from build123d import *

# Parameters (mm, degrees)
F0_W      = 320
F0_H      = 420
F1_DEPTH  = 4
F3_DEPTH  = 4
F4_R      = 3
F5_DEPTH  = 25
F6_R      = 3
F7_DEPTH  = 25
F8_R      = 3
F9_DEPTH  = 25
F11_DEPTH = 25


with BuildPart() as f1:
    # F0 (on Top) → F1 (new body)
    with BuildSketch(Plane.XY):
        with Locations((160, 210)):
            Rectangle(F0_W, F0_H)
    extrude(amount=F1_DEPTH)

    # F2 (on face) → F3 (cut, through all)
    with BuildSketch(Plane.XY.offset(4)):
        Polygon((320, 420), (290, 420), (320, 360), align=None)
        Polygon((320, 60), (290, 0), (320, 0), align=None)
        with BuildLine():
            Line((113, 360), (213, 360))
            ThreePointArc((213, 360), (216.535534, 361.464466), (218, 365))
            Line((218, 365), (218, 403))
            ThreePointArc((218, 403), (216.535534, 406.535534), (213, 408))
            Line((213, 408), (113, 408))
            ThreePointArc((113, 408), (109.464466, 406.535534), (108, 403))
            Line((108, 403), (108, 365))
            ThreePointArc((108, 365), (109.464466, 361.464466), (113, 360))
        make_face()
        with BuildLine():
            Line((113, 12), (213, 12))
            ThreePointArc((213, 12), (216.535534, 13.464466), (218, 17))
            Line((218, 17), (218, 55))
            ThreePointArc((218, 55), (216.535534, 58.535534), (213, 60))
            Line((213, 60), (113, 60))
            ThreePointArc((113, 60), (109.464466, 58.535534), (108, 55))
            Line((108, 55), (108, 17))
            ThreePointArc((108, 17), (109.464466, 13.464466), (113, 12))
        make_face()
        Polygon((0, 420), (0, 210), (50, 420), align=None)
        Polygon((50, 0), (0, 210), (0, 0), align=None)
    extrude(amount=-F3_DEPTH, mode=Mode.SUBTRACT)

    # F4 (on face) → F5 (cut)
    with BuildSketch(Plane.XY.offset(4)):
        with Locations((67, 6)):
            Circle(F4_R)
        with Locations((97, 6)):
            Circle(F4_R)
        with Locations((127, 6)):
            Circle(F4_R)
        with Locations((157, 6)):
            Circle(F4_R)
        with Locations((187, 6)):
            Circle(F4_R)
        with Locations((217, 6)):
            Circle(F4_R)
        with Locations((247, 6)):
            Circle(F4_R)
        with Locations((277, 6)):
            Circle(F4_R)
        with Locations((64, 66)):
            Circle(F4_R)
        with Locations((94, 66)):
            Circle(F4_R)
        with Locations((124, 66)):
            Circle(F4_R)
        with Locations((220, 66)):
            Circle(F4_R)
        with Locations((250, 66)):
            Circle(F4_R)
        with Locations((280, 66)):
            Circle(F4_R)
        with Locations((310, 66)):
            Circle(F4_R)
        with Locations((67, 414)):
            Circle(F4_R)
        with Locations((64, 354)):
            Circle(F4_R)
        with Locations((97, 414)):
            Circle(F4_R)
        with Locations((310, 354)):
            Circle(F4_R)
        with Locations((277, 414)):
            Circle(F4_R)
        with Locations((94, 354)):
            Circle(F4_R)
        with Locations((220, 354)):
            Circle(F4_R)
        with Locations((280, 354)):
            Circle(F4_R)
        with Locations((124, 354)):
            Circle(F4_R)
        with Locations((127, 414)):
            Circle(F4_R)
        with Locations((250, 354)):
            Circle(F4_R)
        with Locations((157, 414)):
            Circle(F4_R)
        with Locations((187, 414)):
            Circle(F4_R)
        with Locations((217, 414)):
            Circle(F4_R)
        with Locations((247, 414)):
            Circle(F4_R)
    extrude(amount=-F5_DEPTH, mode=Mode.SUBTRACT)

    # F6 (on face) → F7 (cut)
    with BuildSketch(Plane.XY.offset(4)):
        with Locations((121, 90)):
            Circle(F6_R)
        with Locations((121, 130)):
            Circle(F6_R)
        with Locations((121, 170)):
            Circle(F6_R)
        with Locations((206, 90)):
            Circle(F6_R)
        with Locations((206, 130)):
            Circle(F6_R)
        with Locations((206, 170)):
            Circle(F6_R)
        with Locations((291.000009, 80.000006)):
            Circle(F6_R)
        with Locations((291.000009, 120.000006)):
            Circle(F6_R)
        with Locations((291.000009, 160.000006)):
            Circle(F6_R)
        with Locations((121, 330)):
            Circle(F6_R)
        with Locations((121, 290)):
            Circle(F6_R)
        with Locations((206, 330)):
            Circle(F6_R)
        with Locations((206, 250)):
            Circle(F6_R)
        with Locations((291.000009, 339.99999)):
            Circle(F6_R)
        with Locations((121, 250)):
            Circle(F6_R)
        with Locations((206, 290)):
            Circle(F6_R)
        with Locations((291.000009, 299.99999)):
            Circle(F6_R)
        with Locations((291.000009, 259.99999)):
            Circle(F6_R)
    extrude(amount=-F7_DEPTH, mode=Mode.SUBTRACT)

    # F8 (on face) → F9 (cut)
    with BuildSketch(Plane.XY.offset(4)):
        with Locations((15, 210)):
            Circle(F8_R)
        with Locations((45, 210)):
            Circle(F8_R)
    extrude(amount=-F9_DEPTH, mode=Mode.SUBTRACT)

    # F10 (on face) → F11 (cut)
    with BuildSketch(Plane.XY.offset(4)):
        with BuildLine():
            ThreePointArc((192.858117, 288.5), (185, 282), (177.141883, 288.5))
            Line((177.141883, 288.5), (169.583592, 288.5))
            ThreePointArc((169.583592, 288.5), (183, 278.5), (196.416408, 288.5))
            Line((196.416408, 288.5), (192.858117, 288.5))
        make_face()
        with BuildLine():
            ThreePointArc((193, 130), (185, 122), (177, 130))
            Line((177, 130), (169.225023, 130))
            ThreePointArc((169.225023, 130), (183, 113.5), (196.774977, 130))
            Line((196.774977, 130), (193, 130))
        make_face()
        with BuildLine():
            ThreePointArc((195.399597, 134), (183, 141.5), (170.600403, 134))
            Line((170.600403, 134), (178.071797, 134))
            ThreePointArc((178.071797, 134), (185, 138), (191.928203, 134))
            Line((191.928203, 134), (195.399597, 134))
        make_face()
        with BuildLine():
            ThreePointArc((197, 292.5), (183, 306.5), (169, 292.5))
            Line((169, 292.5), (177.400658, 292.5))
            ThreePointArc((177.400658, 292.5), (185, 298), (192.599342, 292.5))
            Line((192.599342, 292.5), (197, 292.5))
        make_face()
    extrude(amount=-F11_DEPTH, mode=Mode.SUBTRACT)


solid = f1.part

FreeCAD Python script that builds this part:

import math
import FreeCAD as App
import Part
import Sketcher
from FreeCAD import Vector

doc = App.newDocument("Part")
body = doc.addObject("PartDesign::Body", "Body")

sketch1 = body.newObject("Sketcher::SketchObject", "Sketch")
sketch1.AttachmentSupport = (doc.getObject("XY_Plane"), [""])
sketch1.MapMode = "FlatFace"
sketch1.addGeometry([
    Part.LineSegment(Vector(0, 420, 0), Vector(0, 0, 0)),
    Part.LineSegment(Vector(0, 0, 0), Vector(320, 0, 0)),
    Part.LineSegment(Vector(320, 0, 0), Vector(320, 420, 0)),
    Part.LineSegment(Vector(320, 420, 0), Vector(0, 420, 0)),
], False)
sketch1.addConstraint([
    Sketcher.Constraint("Coincident", 0, 2, 1, 1),
    Sketcher.Constraint("Coincident", 1, 2, 2, 1),
    Sketcher.Constraint("Coincident", 2, 2, 3, 1),
    Sketcher.Constraint("Coincident", 3, 2, 0, 1),
    Sketcher.Constraint("Vertical", 0),
    Sketcher.Constraint("Horizontal", 1),
    Sketcher.Constraint("Vertical", 2),
    Sketcher.Constraint("Horizontal", 3),
    Sketcher.Constraint("Coincident", 0, 2, -1, 1),
    Sketcher.Constraint("DistanceX", 1, 1, 1, 2, 320.0),
    Sketcher.Constraint("DistanceY", 0, 2, 0, 1, 420.0),
])
pad1 = body.newObject("PartDesign::Pad", "Pad")
pad1.Profile = sketch1
pad1.Length = 4

sketch2 = body.newObject("Sketcher::SketchObject", "Sketch001")
sketch2.AttachmentSupport = (doc.getObject("XY_Plane"), [""])
sketch2.MapMode = "FlatFace"
sketch2.AttachmentOffset = App.Placement(Vector(0, 0, 4), App.Rotation())
sketch2.addGeometry([
    Part.LineSegment(Vector(320, 420, 0), Vector(290, 420, 0)),
    Part.LineSegment(Vector(290, 420, 0), Vector(320, 360, 0)),
    Part.LineSegment(Vector(320, 360, 0), Vector(320, 420, 0)),
    Part.LineSegment(Vector(320, 60, 0), Vector(290, 0, 0)),
    Part.LineSegment(Vector(290, 0, 0), Vector(320, 0, 0)),
    Part.LineSegment(Vector(320, 0, 0), Vector(320, 60, 0)),
    Part.LineSegment(Vector(113, 360, 0), Vector(213, 360, 0)),
    Part.ArcOfCircle(Part.Circle(Vector(213, 365, 0), Vector(0, 0, 1), 5), math.radians(-90.000004), math.radians(0.000004)),
    Part.LineSegment(Vector(218, 365, 0), Vector(218, 403, 0)),
    Part.ArcOfCircle(Part.Circle(Vector(213, 403, 0), Vector(0, 0, 1), 5), math.radians(-0.000004), math.radians(90.000004)),
    Part.LineSegment(Vector(213, 408, 0), Vector(113, 408, 0)),
    Part.ArcOfCircle(Part.Circle(Vector(113, 403, 0), Vector(0, 0, 1), 5), math.radians(89.999996), math.radians(180.000004)),
    Part.LineSegment(Vector(108, 403, 0), Vector(108, 365, 0)),
    Part.ArcOfCircle(Part.Circle(Vector(113, 365, 0), Vector(0, 0, 1), 5), math.radians(179.999996), math.radians(270.000004)),
    Part.LineSegment(Vector(113, 12, 0), Vector(213, 12, 0)),
    Part.ArcOfCircle(Part.Circle(Vector(213, 17, 0), Vector(0, 0, 1), 5), math.radians(-90.000004), math.radians(0.000004)),
    Part.LineSegment(Vector(218, 17, 0), Vector(218, 55, 0)),
    Part.ArcOfCircle(Part.Circle(Vector(213, 55, 0), Vector(0, 0, 1), 5), math.radians(-0.000004), math.radians(90.000004)),
    Part.LineSegment(Vector(213, 60, 0), Vector(113, 60, 0)),
    Part.ArcOfCircle(Part.Circle(Vector(113, 55, 0), Vector(0, 0, 1), 5), math.radians(89.999996), math.radians(180.000004)),
    Part.LineSegment(Vector(108, 55, 0), Vector(108, 17, 0)),
    Part.ArcOfCircle(Part.Circle(Vector(113, 17, 0), Vector(0, 0, 1), 5), math.radians(179.999996), math.radians(270.000004)),
    Part.LineSegment(Vector(0, 420, 0), Vector(0, 210, 0)),
    Part.LineSegment(Vector(0, 210, 0), Vector(50, 420, 0)),
    Part.LineSegment(Vector(50, 420, 0), Vector(0, 420, 0)),
    Part.LineSegment(Vector(50, 0, 0), Vector(0, 210, 0)),
    Part.LineSegment(Vector(0, 210, 0), Vector(0, 0, 0)),
    Part.LineSegment(Vector(0, 0, 0), Vector(50, 0, 0)),
], False)
sketch2.addConstraint([
    Sketcher.Constraint("Coincident", 0, 2, 1, 1),
    Sketcher.Constraint("Coincident", 1, 2, 2, 1),
    Sketcher.Constraint("Coincident", 2, 2, 0, 1),
    Sketcher.Constraint("Coincident", 3, 2, 4, 1),
    Sketcher.Constraint("Coincident", 4, 2, 5, 1),
    Sketcher.Constraint("Coincident", 5, 2, 3, 1),
    Sketcher.Constraint("Tangent", 6, 2, 7, 1),
    Sketcher.Constraint("Tangent", 7, 2, 8, 1),
    Sketcher.Constraint("Tangent", 8, 2, 9, 1),
    Sketcher.Constraint("Tangent", 9, 2, 10, 1),
    Sketcher.Constraint("Tangent", 10, 2, 11, 1),
    Sketcher.Constraint("Tangent", 11, 2, 12, 1),
    Sketcher.Constraint("Tangent", 12, 2, 13, 1),
    Sketcher.Constraint("Tangent", 13, 2, 6, 1),
    Sketcher.Constraint("Tangent", 14, 2, 15, 1),
    Sketcher.Constraint("Tangent", 15, 2, 16, 1),
    Sketcher.Constraint("Tangent", 16, 2, 17, 1),
    Sketcher.Constraint("Tangent", 17, 2, 18, 1),
    Sketcher.Constraint("Tangent", 18, 2, 19, 1),
    Sketcher.Constraint("Tangent", 19, 2, 20, 1),
    Sketcher.Constraint("Tangent", 20, 2, 21, 1),
    Sketcher.Constraint("Tangent", 21, 2, 14, 1),
    Sketcher.Constraint("Coincident", 22, 2, 23, 1),
    Sketcher.Constraint("Coincident", 23, 2, 24, 1),
    Sketcher.Constraint("Coincident", 24, 2, 22, 1),
    Sketcher.Constraint("Coincident", 25, 2, 26, 1),
    Sketcher.Constraint("Coincident", 26, 2, 27, 1),
    Sketcher.Constraint("Coincident", 27, 2, 25, 1),
    Sketcher.Constraint("Horizontal", 0),
    Sketcher.Constraint("Vertical", 2),
    Sketcher.Constraint("Horizontal", 4),
    Sketcher.Constraint("Vertical", 5),
    Sketcher.Constraint("Horizontal", 6),
    Sketcher.Constraint("Vertical", 8),
    Sketcher.Constraint("Horizontal", 10),
    Sketcher.Constraint("Vertical", 12),
    Sketcher.Constraint("Horizontal", 14),
    Sketcher.Constraint("Vertical", 16),
    Sketcher.Constraint("Horizontal", 18),
    Sketcher.Constraint("Vertical", 20),
    Sketcher.Constraint("Vertical", 22),
    Sketcher.Constraint("Horizontal", 24),
    Sketcher.Constraint("Vertical", 26),
    Sketcher.Constraint("Horizontal", 27),
    Sketcher.Constraint("Coincident", 26, 2, -1, 1),
    Sketcher.Constraint("Coincident", 25, 2, 22, 2),
    Sketcher.Constraint("Equal", 7, 9),
    Sketcher.Constraint("Equal", 9, 11),
    Sketcher.Constraint("Equal", 11, 13),
    Sketcher.Constraint("Equal", 13, 15),
    Sketcher.Constraint("Equal", 15, 17),
    Sketcher.Constraint("Equal", 17, 19),
    Sketcher.Constraint("Equal", 19, 21),
    Sketcher.Constraint("PointOnObject", 3, 2, -1),
    Sketcher.Constraint("Horizontal", 1, 2, 6, 2),
    Sketcher.Constraint("Horizontal", 5, 2, 17, 2),
    Sketcher.Constraint("Horizontal", 2, 2, 23, 2),
    Sketcher.Constraint("Vertical", 9, 3, 15, 3),
    Sketcher.Constraint("Vertical", 13, 3, 19, 3),
    Sketcher.Constraint("Vertical", 0, 2, 3, 2),
    Sketcher.Constraint("Vertical", 2, 2, 4, 2),
    Sketcher.Constraint("Vertical", 23, 2, 27, 2),
    Sketcher.Constraint("Equal", 2, 5),
    Sketcher.Constraint("Equal", 12, 16),
    Sketcher.Constraint("Equal", 22, 26),
    Sketcher.Constraint("Radius", 7, 5.0),
    Sketcher.Constraint("DistanceX", 0, 2, 0, 1, 30.0),
    Sketcher.Constraint("DistanceX", 6, 1, 6, 2, 100.0),
    Sketcher.Constraint("DistanceX", 24, 2, 24, 1, 50.0),
    Sketcher.Constraint("DistanceY", 2, 1, 2, 2, 60.0),
    Sketcher.Constraint("DistanceY", 8, 1, 8, 2, 38.0),
    Sketcher.Constraint("DistanceY", 22, 2, 22, 1, 210.0),
    Sketcher.Constraint("DistanceX", -1, 1, 7, 3, 213.0),
    Sketcher.Constraint("DistanceX", -1, 1, 0, 2, 290.0),
])
pocket1 = body.newObject("PartDesign::Pocket", "Pocket")
pocket1.Profile = sketch2
pocket1.Type = "ThroughAll"

sketch3 = body.newObject("Sketcher::SketchObject", "Sketch002")
sketch3.AttachmentSupport = (doc.getObject("XY_Plane"), [""])
sketch3.MapMode = "FlatFace"
sketch3.AttachmentOffset = App.Placement(Vector(0, 0, 4), App.Rotation())
sketch3.addGeometry([
    Part.Circle(Vector(67, 6, 0), Vector(0, 0, 1), 3),
    Part.Circle(Vector(97, 6, 0), Vector(0, 0, 1), 3),
    Part.Circle(Vector(127, 6, 0), Vector(0, 0, 1), 3),
    Part.Circle(Vector(157, 6, 0), Vector(0, 0, 1), 3),
    Part.Circle(Vector(187, 6, 0), Vector(0, 0, 1), 3),
    Part.Circle(Vector(217, 6, 0), Vector(0, 0, 1), 3),
    Part.Circle(Vector(247, 6, 0), Vector(0, 0, 1), 3),
    Part.Circle(Vector(277, 6, 0), Vector(0, 0, 1), 3),
    Part.Circle(Vector(64, 66, 0), Vector(0, 0, 1), 3),
    Part.Circle(Vector(94, 66, 0), Vector(0, 0, 1), 3),
    Part.Circle(Vector(124, 66, 0), Vector(0, 0, 1), 3),
    Part.Circle(Vector(220, 66, 0), Vector(0, 0, 1), 3),
    Part.Circle(Vector(250, 66, 0), Vector(0, 0, 1), 3),
    Part.Circle(Vector(280, 66, 0), Vector(0, 0, 1), 3),
    Part.Circle(Vector(310, 66, 0), Vector(0, 0, 1), 3),
    Part.Circle(Vector(67, 414, 0), Vector(0, 0, 1), 3),
    Part.Circle(Vector(64, 354, 0), Vector(0, 0, 1), 3),
    Part.Circle(Vector(97, 414, 0), Vector(0, 0, 1), 3),
    Part.Circle(Vector(310, 354, 0), Vector(0, 0, 1), 3),
    Part.Circle(Vector(277, 414, 0), Vector(0, 0, 1), 3),
    Part.Circle(Vector(94, 354, 0), Vector(0, 0, 1), 3),
    Part.Circle(Vector(220, 354, 0), Vector(0, 0, 1), 3),
    Part.Circle(Vector(280, 354, 0), Vector(0, 0, 1), 3),
    Part.Circle(Vector(124, 354, 0), Vector(0, 0, 1), 3),
    Part.Circle(Vector(127, 414, 0), Vector(0, 0, 1), 3),
    Part.Circle(Vector(250, 354, 0), Vector(0, 0, 1), 3),
    Part.Circle(Vector(157, 414, 0), Vector(0, 0, 1), 3),
    Part.Circle(Vector(187, 414, 0), Vector(0, 0, 1), 3),
    Part.Circle(Vector(217, 414, 0), Vector(0, 0, 1), 3),
    Part.Circle(Vector(247, 414, 0), Vector(0, 0, 1), 3),
], False)
sketch3.addConstraint([
    Sketcher.Constraint("Equal", 0, 1),
    Sketcher.Constraint("Equal", 1, 2),
    Sketcher.Constraint("Equal", 2, 3),
    Sketcher.Constraint("Equal", 3, 4),
    Sketcher.Constraint("Equal", 4, 5),
    Sketcher.Constraint("Equal", 5, 6),
    Sketcher.Constraint("Equal", 6, 7),
    Sketcher.Constraint("Equal", 7, 8),
    Sketcher.Constraint("Equal", 8, 9),
    Sketcher.Constraint("Equal", 9, 10),
    Sketcher.Constraint("Equal", 10, 11),
    Sketcher.Constraint("Equal", 11, 12),
    Sketcher.Constraint("Equal", 12, 13),
    Sketcher.Constraint("Equal", 13, 14),
    Sketcher.Constraint("Equal", 14, 15),
    Sketcher.Constraint("Equal", 15, 16),
    Sketcher.Constraint("Equal", 16, 17),
    Sketcher.Constraint("Equal", 17, 18),
    Sketcher.Constraint("Equal", 18, 19),
    Sketcher.Constraint("Equal", 19, 20),
    Sketcher.Constraint("Equal", 20, 21),
    Sketcher.Constraint("Equal", 21, 22),
    Sketcher.Constraint("Equal", 22, 23),
    Sketcher.Constraint("Equal", 23, 24),
    Sketcher.Constraint("Equal", 24, 25),
    Sketcher.Constraint("Equal", 25, 26),
    Sketcher.Constraint("Equal", 26, 27),
    Sketcher.Constraint("Equal", 27, 28),
    Sketcher.Constraint("Equal", 28, 29),
    Sketcher.Constraint("Horizontal", 0, 3, 1, 3),
    Sketcher.Constraint("Horizontal", 1, 3, 2, 3),
    Sketcher.Constraint("Horizontal", 2, 3, 3, 3),
    Sketcher.Constraint("Horizontal", 3, 3, 4, 3),
    Sketcher.Constraint("Horizontal", 4, 3, 5, 3),
    Sketcher.Constraint("Horizontal", 5, 3, 6, 3),
    Sketcher.Constraint("Horizontal", 6, 3, 7, 3),
    Sketcher.Constraint("Horizontal", 8, 3, 9, 3),
    Sketcher.Constraint("Horizontal", 9, 3, 10, 3),
    Sketcher.Constraint("Horizontal", 10, 3, 11, 3),
    Sketcher.Constraint("Horizontal", 11, 3, 12, 3),
    Sketcher.Constraint("Horizontal", 12, 3, 13, 3),
    Sketcher.Constraint("Horizontal", 13, 3, 14, 3),
    Sketcher.Constraint("Horizontal", 15, 3, 17, 3),
    Sketcher.Constraint("Horizontal", 16, 3, 18, 3),
    Sketcher.Constraint("Horizontal", 17, 3, 19, 3),
    Sketcher.Constraint("Horizontal", 18, 3, 20, 3),
    Sketcher.Constraint("Horizontal", 20, 3, 21, 3),
    Sketcher.Constraint("Horizontal", 21, 3, 22, 3),
    Sketcher.Constraint("Horizontal", 22, 3, 23, 3),
    Sketcher.Constraint("Horizontal", 19, 3, 24, 3),
    Sketcher.Constraint("Horizontal", 23, 3, 25, 3),
    Sketcher.Constraint("Horizontal", 24, 3, 26, 3),
    Sketcher.Constraint("Horizontal", 26, 3, 27, 3),
    Sketcher.Constraint("Horizontal", 27, 3, 28, 3),
    Sketcher.Constraint("Horizontal", 28, 3, 29, 3),
    Sketcher.Constraint("Vertical", 0, 3, 15, 3),
    Sketcher.Constraint("Vertical", 8, 3, 16, 3),
    Sketcher.Constraint("Vertical", 1, 3, 17, 3),
    Sketcher.Constraint("Vertical", 14, 3, 18, 3),
    Sketcher.Constraint("Vertical", 7, 3, 19, 3),
    Sketcher.Constraint("Vertical", 9, 3, 20, 3),
    Sketcher.Constraint("Vertical", 11, 3, 21, 3),
    Sketcher.Constraint("Vertical", 13, 3, 22, 3),
    Sketcher.Constraint("Vertical", 10, 3, 23, 3),
    Sketcher.Constraint("Vertical", 2, 3, 24, 3),
    Sketcher.Constraint("Vertical", 12, 3, 25, 3),
    Sketcher.Constraint("Vertical", 3, 3, 26, 3),
    Sketcher.Constraint("Vertical", 4, 3, 27, 3),
    Sketcher.Constraint("Vertical", 5, 3, 28, 3),
    Sketcher.Constraint("Vertical", 6, 3, 29, 3),
    Sketcher.Constraint("Diameter", 0, 6.0),
    Sketcher.Constraint("DistanceX", -1, 1, 0, 3, 67.0),
    Sketcher.Constraint("DistanceY", -1, 1, 0, 3, 6.0),
    Sketcher.Constraint("DistanceX", -1, 1, 1, 3, 97.0),
    Sketcher.Constraint("DistanceX", -1, 1, 2, 3, 127.0),
    Sketcher.Constraint("DistanceX", -1, 1, 3, 3, 157.0),
    Sketcher.Constraint("DistanceX", -1, 1, 4, 3, 187.0),
    Sketcher.Constraint("DistanceX", -1, 1, 5, 3, 217.0),
    Sketcher.Constraint("DistanceX", -1, 1, 6, 3, 247.0),
    Sketcher.Constraint("DistanceX", -1, 1, 7, 3, 277.0),
    Sketcher.Constraint("DistanceX", -1, 1, 8, 3, 64.0),
    Sketcher.Constraint("DistanceY", -1, 1, 8, 3, 66.0),
    Sketcher.Constraint("DistanceX", -1, 1, 9, 3, 94.0),
    Sketcher.Constraint("DistanceX", -1, 1, 10, 3, 124.0),
    Sketcher.Constraint("DistanceX", -1, 1, 11, 3, 220.0),
    Sketcher.Constraint("DistanceX", -1, 1, 12, 3, 250.0),
    Sketcher.Constraint("DistanceX", -1, 1, 13, 3, 280.0),
    Sketcher.Constraint("DistanceX", -1, 1, 14, 3, 310.0),
    Sketcher.Constraint("DistanceY", -1, 1, 15, 3, 414.0),
    Sketcher.Constraint("DistanceY", -1, 1, 16, 3, 354.0),
])
pocket2 = body.newObject("PartDesign::Pocket", "Pocket001")
pocket2.Profile = sketch3
pocket2.Length = 25

sketch4 = body.newObject("Sketcher::SketchObject", "Sketch003")
sketch4.AttachmentSupport = (doc.getObject("XY_Plane"), [""])
sketch4.MapMode = "FlatFace"
sketch4.AttachmentOffset = App.Placement(Vector(0, 0, 4), App.Rotation())
sketch4.addGeometry([
    Part.Circle(Vector(121, 90, 0), Vector(0, 0, 1), 3),
    Part.Circle(Vector(121, 130, 0), Vector(0, 0, 1), 3),
    Part.Circle(Vector(121, 170, 0), Vector(0, 0, 1), 3),
    Part.Circle(Vector(206, 90, 0), Vector(0, 0, 1), 3),
    Part.Circle(Vector(206, 130, 0), Vector(0, 0, 1), 3),
    Part.Circle(Vector(206, 170, 0), Vector(0, 0, 1), 3),
    Part.Circle(Vector(291.000009, 80.000006, 0), Vector(0, 0, 1), 3),
    Part.Circle(Vector(291.000009, 120.000006, 0), Vector(0, 0, 1), 3),
    Part.Circle(Vector(291.000009, 160.000006, 0), Vector(0, 0, 1), 3),
    Part.Circle(Vector(121, 330, 0), Vector(0, 0, 1), 3),
    Part.Circle(Vector(121, 290, 0), Vector(0, 0, 1), 3),
    Part.Circle(Vector(206, 330, 0), Vector(0, 0, 1), 3),
    Part.Circle(Vector(206, 250, 0), Vector(0, 0, 1), 3),
    Part.Circle(Vector(291.000009, 339.99999, 0), Vector(0, 0, 1), 3),
    Part.Circle(Vector(121, 250, 0), Vector(0, 0, 1), 3),
    Part.Circle(Vector(206, 290, 0), Vector(0, 0, 1), 3),
    Part.Circle(Vector(291.000009, 299.99999, 0), Vector(0, 0, 1), 3),
    Part.Circle(Vector(291.000009, 259.99999, 0), Vector(0, 0, 1), 3),
], False)
sketch4.addConstraint([
    Sketcher.Constraint("Equal", 0, 1),
    Sketcher.Constraint("Equal", 1, 2),
    Sketcher.Constraint("Equal", 2, 3),
    Sketcher.Constraint("Equal", 3, 4),
    Sketcher.Constraint("Equal", 4, 5),
    Sketcher.Constraint("Equal", 5, 6),
    Sketcher.Constraint("Equal", 6, 7),
    Sketcher.Constraint("Equal", 7, 8),
    Sketcher.Constraint("Equal", 8, 9),
    Sketcher.Constraint("Equal", 9, 10),
    Sketcher.Constraint("Equal", 10, 11),
    Sketcher.Constraint("Equal", 11, 12),
    Sketcher.Constraint("Equal", 12, 13),
    Sketcher.Constraint("Equal", 13, 14),
    Sketcher.Constraint("Equal", 14, 15),
    Sketcher.Constraint("Equal", 15, 16),
    Sketcher.Constraint("Equal", 16, 17),
    Sketcher.Constraint("Horizontal", 0, 3, 3, 3),
    Sketcher.Constraint("Horizontal", 1, 3, 4, 3),
    Sketcher.Constraint("Horizontal", 2, 3, 5, 3),
    Sketcher.Constraint("Horizontal", 9, 3, 11, 3),
    Sketcher.Constraint("Horizontal", 12, 3, 14, 3),
    Sketcher.Constraint("Horizontal", 10, 3, 15, 3),
    Sketcher.Constraint("Vertical", 0, 3, 1, 3),
    Sketcher.Constraint("Vertical", 1, 3, 2, 3),
    Sketcher.Constraint("Vertical", 3, 3, 4, 3),
    Sketcher.Constraint("Vertical", 4, 3, 5, 3),
    Sketcher.Constraint("Vertical", 6, 3, 7, 3),
    Sketcher.Constraint("Vertical", 7, 3, 8, 3),
    Sketcher.Constraint("Vertical", 2, 3, 9, 3),
    Sketcher.Constraint("Vertical", 9, 3, 10, 3),
    Sketcher.Constraint("Vertical", 5, 3, 11, 3),
    Sketcher.Constraint("Vertical", 11, 3, 12, 3),
    Sketcher.Constraint("Vertical", 8, 3, 13, 3),
    Sketcher.Constraint("Vertical", 10, 3, 14, 3),
    Sketcher.Constraint("Vertical", 12, 3, 15, 3),
    Sketcher.Constraint("Vertical", 13, 3, 16, 3),
    Sketcher.Constraint("Vertical", 16, 3, 17, 3),
    Sketcher.Constraint("Diameter", 0, 6.0),
    Sketcher.Constraint("DistanceX", -1, 1, 0, 3, 121.0),
    Sketcher.Constraint("DistanceY", -1, 1, 0, 3, 90.0),
    Sketcher.Constraint("DistanceY", -1, 1, 1, 3, 130.0),
    Sketcher.Constraint("DistanceY", -1, 1, 2, 3, 170.0),
    Sketcher.Constraint("DistanceX", -1, 1, 3, 3, 206.0),
    Sketcher.Constraint("DistanceY", -1, 1, 9, 3, 330.0),
    Sketcher.Constraint("DistanceY", -1, 1, 10, 3, 290.0),
    Sketcher.Constraint("DistanceY", -1, 1, 12, 3, 250.0),
    Sketcher.Constraint("DistanceY", 6, 3, 7, 3, 40.0),
    Sketcher.Constraint("DistanceY", 7, 3, 8, 3, 40.0),
    Sketcher.Constraint("DistanceY", 16, 3, 13, 3, 40.0),
    Sketcher.Constraint("DistanceY", 17, 3, 16, 3, 40.0),
    Sketcher.Constraint("DistanceX", -1, 1, 6, 3, 291.000009),
    Sketcher.Constraint("DistanceY", -1, 1, 13, 3, 339.99999),
    Sketcher.Constraint("DistanceY", -1, 1, 6, 3, 80.000006),
])
pocket3 = body.newObject("PartDesign::Pocket", "Pocket002")
pocket3.Profile = sketch4
pocket3.Length = 25

sketch5 = body.newObject("Sketcher::SketchObject", "Sketch004")
sketch5.AttachmentSupport = (doc.getObject("XY_Plane"), [""])
sketch5.MapMode = "FlatFace"
sketch5.AttachmentOffset = App.Placement(Vector(0, 0, 4), App.Rotation())
sketch5.addGeometry([
    Part.Circle(Vector(15, 210, 0), Vector(0, 0, 1), 3),
    Part.Circle(Vector(45, 210, 0), Vector(0, 0, 1), 3),
], False)
sketch5.addConstraint([
    Sketcher.Constraint("Equal", 0, 1),
    Sketcher.Constraint("Horizontal", 0, 3, 1, 3),
    Sketcher.Constraint("Diameter", 0, 6.0),
    Sketcher.Constraint("DistanceX", -1, 1, 0, 3, 15.0),
    Sketcher.Constraint("DistanceY", -1, 1, 0, 3, 210.0),
    Sketcher.Constraint("DistanceX", -1, 1, 1, 3, 45.0),
])
pocket4 = body.newObject("PartDesign::Pocket", "Pocket003")
pocket4.Profile = sketch5
pocket4.Length = 25

sketch6 = body.newObject("Sketcher::SketchObject", "Sketch005")
sketch6.AttachmentSupport = (doc.getObject("XY_Plane"), [""])
sketch6.MapMode = "FlatFace"
sketch6.AttachmentOffset = App.Placement(Vector(0, 0, 4), App.Rotation())
sketch6.addGeometry([
    Part.ArcOfCircle(Part.Circle(Vector(185, 290, 0), Vector(0, 0, 1), 8), math.radians(-169.193076), math.radians(-10.806924)),
    Part.LineSegment(Vector(177.141883, 288.5, 0), Vector(169.583592, 288.5, 0)),
    Part.ArcOfCircle(Part.Circle(Vector(183, 292.5, 0), Vector(0, 0, 1), 14), math.radians(-163.39845), math.radians(-16.60155)),
    Part.LineSegment(Vector(196.416408, 288.5, 0), Vector(192.858117, 288.5, 0)),
    Part.ArcOfCircle(Part.Circle(Vector(185, 130, 0), Vector(0, 0, 1), 8), math.radians(180), math.radians(360)),
    Part.LineSegment(Vector(177, 130, 0), Vector(169.225023, 130, 0)),
    Part.ArcOfCircle(Part.Circle(Vector(183, 127.5, 0), Vector(0, 0, 1), 14), math.radians(169.713438), math.radians(370.286562)),
    Part.LineSegment(Vector(196.774977, 130, 0), Vector(193, 130, 0)),
    Part.ArcOfCircle(Part.Circle(Vector(183, 127.5, 0), Vector(0, 0, 1), 14), math.radians(27.664005), math.radians(152.335995)),
    Part.LineSegment(Vector(170.600403, 134, 0), Vector(178.071797, 134, 0)),
    Part.ArcOfCircle(Part.Circle(Vector(185, 130, 0), Vector(0, 0, 1), 8), math.radians(29.999998), math.radians(150.000002)),
    Part.LineSegment(Vector(191.928203, 134, 0), Vector(195.399597, 134, 0)),
    Part.ArcOfCircle(Part.Circle(Vector(183, 292.5, 0), Vector(0, 0, 1), 14), math.radians(0), math.radians(180)),
    Part.LineSegment(Vector(169, 292.5, 0), Vector(177.400658, 292.5, 0)),
    Part.ArcOfCircle(Part.Circle(Vector(185, 290, 0), Vector(0, 0, 1), 8), math.radians(18.209956), math.radians(161.790044)),
    Part.LineSegment(Vector(192.599342, 292.5, 0), Vector(197, 292.5, 0)),
], False)
sketch6.addConstraint([
    Sketcher.Constraint("Coincident", 0, 1, 1, 1),
    Sketcher.Constraint("Coincident", 1, 2, 2, 1),
    Sketcher.Constraint("Coincident", 2, 2, 3, 1),
    Sketcher.Constraint("Coincident", 3, 2, 0, 2),
    Sketcher.Constraint("Coincident", 4, 1, 5, 1),
    Sketcher.Constraint("Coincident", 5, 2, 6, 1),
    Sketcher.Constraint("Coincident", 6, 2, 7, 1),
    Sketcher.Constraint("Coincident", 7, 2, 4, 2),
    Sketcher.Constraint("Coincident", 8, 2, 9, 1),
    Sketcher.Constraint("Coincident", 9, 2, 10, 2),
    Sketcher.Constraint("Coincident", 10, 1, 11, 1),
    Sketcher.Constraint("Coincident", 11, 2, 8, 1),
    Sketcher.Constraint("Coincident", 12, 2, 13, 1),
    Sketcher.Constraint("Coincident", 13, 2, 14, 2),
    Sketcher.Constraint("Coincident", 14, 1, 15, 1),
    Sketcher.Constraint("Coincident", 15, 2, 12, 1),
    Sketcher.Constraint("Horizontal", 1),
    Sketcher.Constraint("Horizontal", 3),
    Sketcher.Constraint("Horizontal", 5),
    Sketcher.Constraint("Horizontal", 7),
    Sketcher.Constraint("Horizontal", 9),
    Sketcher.Constraint("Horizontal", 11),
    Sketcher.Constraint("Horizontal", 13),
    Sketcher.Constraint("Horizontal", 15),
    Sketcher.Constraint("Coincident", 8, 3, 6, 3),
    Sketcher.Constraint("Coincident", 10, 3, 4, 3),
    Sketcher.Constraint("Coincident", 12, 3, 2, 3),
    Sketcher.Constraint("Coincident", 14, 3, 0, 3),
    Sketcher.Constraint("Equal", 0, 4),
    Sketcher.Constraint("Equal", 2, 6),
    Sketcher.Constraint("Equal", 6, 8),
    Sketcher.Constraint("Equal", 4, 10),
    Sketcher.Constraint("Equal", 8, 12),
    Sketcher.Constraint("Equal", 10, 14),
    Sketcher.Constraint("Horizontal", 1, 2, 2, 2),
    Sketcher.Constraint("Horizontal", 10, 3, 4, 1),
    Sketcher.Constraint("Horizontal", 5, 2, 6, 2),
    Sketcher.Constraint("Horizontal", 9, 2, 10, 1),
    Sketcher.Constraint("Horizontal", 2, 3, 12, 2),
    Sketcher.Constraint("Horizontal", 13, 2, 14, 1),
    Sketcher.Constraint("Vertical", 0, 3, 4, 3),
    Sketcher.Constraint("Vertical", 2, 3, 6, 3),
    Sketcher.Constraint("Radius", 0, 8.0),
    Sketcher.Constraint("Radius", 2, 14.0),
    Sketcher.Constraint("DistanceX", -1, 1, 0, 3, 185.0),
    Sketcher.Constraint("DistanceY", -1, 1, 0, 3, 290.0),
    Sketcher.Constraint("DistanceX", -1, 1, 2, 3, 183.0),
    Sketcher.Constraint("DistanceY", -1, 1, 4, 3, 130.0),
    Sketcher.Constraint("DistanceY", -1, 1, 8, 2, 134.0),
    Sketcher.Constraint("DistanceY", 6, 3, 2, 3, 165.0),
    Sketcher.Constraint("DistanceY", 0, 1, 12, 3, 4.0),
    Sketcher.Constraint("DistanceY", -1, 1, 2, 3, 292.5),
])
pocket5 = body.newObject("PartDesign::Pocket", "Pocket004")
pocket5.Profile = sketch6
pocket5.Length = 25

doc.recompute()
